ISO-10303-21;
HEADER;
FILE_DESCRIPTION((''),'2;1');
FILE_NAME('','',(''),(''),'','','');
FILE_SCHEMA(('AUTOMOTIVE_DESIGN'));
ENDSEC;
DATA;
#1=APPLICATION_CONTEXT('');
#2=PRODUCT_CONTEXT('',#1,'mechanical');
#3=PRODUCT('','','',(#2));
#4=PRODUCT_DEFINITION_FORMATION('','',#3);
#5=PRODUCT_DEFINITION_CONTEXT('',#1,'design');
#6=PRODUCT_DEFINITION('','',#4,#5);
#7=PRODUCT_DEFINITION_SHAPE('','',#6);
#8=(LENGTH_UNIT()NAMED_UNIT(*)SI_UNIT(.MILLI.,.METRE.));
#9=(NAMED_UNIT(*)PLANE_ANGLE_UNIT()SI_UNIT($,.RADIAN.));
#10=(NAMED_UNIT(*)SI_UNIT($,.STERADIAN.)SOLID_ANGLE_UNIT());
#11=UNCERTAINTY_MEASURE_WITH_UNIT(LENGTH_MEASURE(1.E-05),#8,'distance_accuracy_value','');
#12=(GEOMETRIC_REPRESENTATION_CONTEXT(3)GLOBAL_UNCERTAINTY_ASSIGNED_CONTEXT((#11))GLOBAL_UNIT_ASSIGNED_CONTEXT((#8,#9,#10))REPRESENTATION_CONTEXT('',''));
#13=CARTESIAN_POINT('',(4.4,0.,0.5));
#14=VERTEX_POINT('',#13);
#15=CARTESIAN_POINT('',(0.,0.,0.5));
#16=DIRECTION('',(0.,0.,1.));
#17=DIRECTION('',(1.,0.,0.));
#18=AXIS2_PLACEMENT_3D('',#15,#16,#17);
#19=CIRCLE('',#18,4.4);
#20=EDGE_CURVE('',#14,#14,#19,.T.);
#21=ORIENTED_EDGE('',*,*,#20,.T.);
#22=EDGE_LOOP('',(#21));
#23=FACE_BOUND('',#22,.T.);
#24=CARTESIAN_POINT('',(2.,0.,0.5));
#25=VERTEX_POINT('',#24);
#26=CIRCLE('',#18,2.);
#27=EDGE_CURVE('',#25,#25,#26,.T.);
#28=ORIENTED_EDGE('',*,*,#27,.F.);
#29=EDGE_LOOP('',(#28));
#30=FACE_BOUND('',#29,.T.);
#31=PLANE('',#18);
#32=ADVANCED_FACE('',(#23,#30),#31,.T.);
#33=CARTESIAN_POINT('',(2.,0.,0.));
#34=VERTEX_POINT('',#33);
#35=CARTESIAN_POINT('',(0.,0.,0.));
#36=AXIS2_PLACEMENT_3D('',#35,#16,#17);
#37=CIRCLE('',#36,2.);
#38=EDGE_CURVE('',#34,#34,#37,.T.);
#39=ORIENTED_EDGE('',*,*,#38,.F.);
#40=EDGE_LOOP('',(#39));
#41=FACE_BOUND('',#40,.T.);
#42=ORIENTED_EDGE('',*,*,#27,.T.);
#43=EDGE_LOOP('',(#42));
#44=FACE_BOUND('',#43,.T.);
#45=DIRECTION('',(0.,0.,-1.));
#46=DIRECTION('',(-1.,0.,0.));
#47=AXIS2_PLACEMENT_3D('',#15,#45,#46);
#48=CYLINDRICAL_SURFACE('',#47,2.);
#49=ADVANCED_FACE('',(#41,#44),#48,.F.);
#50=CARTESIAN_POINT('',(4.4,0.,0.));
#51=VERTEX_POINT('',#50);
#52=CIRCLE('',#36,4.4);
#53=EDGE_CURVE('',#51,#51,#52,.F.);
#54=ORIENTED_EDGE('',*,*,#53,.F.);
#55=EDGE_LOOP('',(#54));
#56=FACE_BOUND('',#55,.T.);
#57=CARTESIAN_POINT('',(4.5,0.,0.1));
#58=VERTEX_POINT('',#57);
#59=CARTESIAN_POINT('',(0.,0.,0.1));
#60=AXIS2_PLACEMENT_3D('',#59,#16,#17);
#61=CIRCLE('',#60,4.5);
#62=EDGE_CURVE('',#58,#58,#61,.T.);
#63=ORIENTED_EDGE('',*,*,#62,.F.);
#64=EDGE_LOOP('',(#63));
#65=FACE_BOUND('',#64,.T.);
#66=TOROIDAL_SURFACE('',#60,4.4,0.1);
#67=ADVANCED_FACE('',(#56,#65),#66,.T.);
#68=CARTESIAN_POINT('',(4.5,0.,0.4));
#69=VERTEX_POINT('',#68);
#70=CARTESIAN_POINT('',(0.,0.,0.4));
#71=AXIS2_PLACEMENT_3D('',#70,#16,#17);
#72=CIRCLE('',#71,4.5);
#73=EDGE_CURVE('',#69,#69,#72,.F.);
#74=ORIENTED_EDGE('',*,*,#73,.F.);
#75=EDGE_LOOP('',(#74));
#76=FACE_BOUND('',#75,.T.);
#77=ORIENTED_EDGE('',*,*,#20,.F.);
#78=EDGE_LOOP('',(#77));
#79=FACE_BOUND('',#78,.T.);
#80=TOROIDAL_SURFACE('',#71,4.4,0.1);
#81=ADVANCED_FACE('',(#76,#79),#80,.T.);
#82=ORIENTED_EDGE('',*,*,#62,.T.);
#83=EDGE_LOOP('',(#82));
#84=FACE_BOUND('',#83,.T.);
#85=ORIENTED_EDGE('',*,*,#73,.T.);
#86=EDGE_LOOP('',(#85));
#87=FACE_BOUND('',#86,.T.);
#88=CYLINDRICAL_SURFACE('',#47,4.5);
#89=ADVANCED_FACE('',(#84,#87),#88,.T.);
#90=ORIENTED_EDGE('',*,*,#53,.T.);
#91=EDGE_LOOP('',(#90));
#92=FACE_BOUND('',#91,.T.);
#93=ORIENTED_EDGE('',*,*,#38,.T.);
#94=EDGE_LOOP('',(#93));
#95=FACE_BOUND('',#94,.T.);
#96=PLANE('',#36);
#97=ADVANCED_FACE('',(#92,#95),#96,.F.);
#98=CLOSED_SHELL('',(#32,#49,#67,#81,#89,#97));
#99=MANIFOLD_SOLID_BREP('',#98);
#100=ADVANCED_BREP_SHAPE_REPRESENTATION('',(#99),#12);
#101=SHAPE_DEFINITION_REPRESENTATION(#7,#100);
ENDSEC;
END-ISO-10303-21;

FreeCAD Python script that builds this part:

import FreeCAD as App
import Part
import Sketcher


def edges_at(feature, points):
    """Names of the edges that pass closest to the given points."""
    edges = feature.Shape.Edges
    near = lambda p: min(range(len(edges)), key=lambda i: edges[i].distToShape(Part.Vertex(*p))[0])
    return sorted({f"Edge{near(p) + 1}" for p in points})

doc = App.newDocument("Part")
params = doc.addObject("Spreadsheet::Sheet", "Params")
for row, (alias, value) in enumerate([
    ("sketch1_diameter", "9 mm"),
    ("sketch1_diameter2", "4 mm"),
    ("pad1_length", "0.5 mm"),
    ("fillet_radius", "0.1 mm"),
], start=1):
    params.set(f"A{row}", alias)
    params.set(f"B{row}", "=" + value)
    params.setAlias(f"B{row}", alias)

body = doc.addObject("PartDesign::Body", "Body")

sketch1 = body.newObject("Sketcher::SketchObject", "Sketch")
sketch1.AttachmentSupport = (doc.getObject("XY_Plane"), [""])
sketch1.MapMode = "FlatFace"
sketch1.addGeometry(Part.Circle(App.Vector(0, 0, 0), App.Vector(0, 0, 1), 4.5), False)
sketch1.addGeometry(Part.Circle(App.Vector(0, 0, 0), App.Vector(0, 0, 1), 2), False)
sketch1.addConstraint(Sketcher.Constraint("Coincident", 0, 3, -1, 1))
sketch1.addConstraint(Sketcher.Constraint("Coincident", 1, 3, -1, 1))
sketch1.addConstraint(Sketcher.Constraint("Diameter", 0, 9.0))
sketch1.addConstraint(Sketcher.Constraint("Diameter", 1, 4.0))
sketch1.setExpression("Constraints[2]", "Params.sketch1_diameter")
sketch1.setExpression("Constraints[3]", "Params.sketch1_diameter2")
pad1 = body.newObject("PartDesign::Pad", "Pad")
pad1.Profile = sketch1
pad1.setExpression("Length", "Params.pad1_length")
doc.recompute()

fillet = body.newObject("PartDesign::Fillet", "Fillet")
fillet.Base = (pad1, edges_at(pad1, [(-4.5, 0, 0), (-4.5, 0, 0.5)]))
fillet.setExpression("Radius", "Params.fillet_radius")

doc.recompute()
